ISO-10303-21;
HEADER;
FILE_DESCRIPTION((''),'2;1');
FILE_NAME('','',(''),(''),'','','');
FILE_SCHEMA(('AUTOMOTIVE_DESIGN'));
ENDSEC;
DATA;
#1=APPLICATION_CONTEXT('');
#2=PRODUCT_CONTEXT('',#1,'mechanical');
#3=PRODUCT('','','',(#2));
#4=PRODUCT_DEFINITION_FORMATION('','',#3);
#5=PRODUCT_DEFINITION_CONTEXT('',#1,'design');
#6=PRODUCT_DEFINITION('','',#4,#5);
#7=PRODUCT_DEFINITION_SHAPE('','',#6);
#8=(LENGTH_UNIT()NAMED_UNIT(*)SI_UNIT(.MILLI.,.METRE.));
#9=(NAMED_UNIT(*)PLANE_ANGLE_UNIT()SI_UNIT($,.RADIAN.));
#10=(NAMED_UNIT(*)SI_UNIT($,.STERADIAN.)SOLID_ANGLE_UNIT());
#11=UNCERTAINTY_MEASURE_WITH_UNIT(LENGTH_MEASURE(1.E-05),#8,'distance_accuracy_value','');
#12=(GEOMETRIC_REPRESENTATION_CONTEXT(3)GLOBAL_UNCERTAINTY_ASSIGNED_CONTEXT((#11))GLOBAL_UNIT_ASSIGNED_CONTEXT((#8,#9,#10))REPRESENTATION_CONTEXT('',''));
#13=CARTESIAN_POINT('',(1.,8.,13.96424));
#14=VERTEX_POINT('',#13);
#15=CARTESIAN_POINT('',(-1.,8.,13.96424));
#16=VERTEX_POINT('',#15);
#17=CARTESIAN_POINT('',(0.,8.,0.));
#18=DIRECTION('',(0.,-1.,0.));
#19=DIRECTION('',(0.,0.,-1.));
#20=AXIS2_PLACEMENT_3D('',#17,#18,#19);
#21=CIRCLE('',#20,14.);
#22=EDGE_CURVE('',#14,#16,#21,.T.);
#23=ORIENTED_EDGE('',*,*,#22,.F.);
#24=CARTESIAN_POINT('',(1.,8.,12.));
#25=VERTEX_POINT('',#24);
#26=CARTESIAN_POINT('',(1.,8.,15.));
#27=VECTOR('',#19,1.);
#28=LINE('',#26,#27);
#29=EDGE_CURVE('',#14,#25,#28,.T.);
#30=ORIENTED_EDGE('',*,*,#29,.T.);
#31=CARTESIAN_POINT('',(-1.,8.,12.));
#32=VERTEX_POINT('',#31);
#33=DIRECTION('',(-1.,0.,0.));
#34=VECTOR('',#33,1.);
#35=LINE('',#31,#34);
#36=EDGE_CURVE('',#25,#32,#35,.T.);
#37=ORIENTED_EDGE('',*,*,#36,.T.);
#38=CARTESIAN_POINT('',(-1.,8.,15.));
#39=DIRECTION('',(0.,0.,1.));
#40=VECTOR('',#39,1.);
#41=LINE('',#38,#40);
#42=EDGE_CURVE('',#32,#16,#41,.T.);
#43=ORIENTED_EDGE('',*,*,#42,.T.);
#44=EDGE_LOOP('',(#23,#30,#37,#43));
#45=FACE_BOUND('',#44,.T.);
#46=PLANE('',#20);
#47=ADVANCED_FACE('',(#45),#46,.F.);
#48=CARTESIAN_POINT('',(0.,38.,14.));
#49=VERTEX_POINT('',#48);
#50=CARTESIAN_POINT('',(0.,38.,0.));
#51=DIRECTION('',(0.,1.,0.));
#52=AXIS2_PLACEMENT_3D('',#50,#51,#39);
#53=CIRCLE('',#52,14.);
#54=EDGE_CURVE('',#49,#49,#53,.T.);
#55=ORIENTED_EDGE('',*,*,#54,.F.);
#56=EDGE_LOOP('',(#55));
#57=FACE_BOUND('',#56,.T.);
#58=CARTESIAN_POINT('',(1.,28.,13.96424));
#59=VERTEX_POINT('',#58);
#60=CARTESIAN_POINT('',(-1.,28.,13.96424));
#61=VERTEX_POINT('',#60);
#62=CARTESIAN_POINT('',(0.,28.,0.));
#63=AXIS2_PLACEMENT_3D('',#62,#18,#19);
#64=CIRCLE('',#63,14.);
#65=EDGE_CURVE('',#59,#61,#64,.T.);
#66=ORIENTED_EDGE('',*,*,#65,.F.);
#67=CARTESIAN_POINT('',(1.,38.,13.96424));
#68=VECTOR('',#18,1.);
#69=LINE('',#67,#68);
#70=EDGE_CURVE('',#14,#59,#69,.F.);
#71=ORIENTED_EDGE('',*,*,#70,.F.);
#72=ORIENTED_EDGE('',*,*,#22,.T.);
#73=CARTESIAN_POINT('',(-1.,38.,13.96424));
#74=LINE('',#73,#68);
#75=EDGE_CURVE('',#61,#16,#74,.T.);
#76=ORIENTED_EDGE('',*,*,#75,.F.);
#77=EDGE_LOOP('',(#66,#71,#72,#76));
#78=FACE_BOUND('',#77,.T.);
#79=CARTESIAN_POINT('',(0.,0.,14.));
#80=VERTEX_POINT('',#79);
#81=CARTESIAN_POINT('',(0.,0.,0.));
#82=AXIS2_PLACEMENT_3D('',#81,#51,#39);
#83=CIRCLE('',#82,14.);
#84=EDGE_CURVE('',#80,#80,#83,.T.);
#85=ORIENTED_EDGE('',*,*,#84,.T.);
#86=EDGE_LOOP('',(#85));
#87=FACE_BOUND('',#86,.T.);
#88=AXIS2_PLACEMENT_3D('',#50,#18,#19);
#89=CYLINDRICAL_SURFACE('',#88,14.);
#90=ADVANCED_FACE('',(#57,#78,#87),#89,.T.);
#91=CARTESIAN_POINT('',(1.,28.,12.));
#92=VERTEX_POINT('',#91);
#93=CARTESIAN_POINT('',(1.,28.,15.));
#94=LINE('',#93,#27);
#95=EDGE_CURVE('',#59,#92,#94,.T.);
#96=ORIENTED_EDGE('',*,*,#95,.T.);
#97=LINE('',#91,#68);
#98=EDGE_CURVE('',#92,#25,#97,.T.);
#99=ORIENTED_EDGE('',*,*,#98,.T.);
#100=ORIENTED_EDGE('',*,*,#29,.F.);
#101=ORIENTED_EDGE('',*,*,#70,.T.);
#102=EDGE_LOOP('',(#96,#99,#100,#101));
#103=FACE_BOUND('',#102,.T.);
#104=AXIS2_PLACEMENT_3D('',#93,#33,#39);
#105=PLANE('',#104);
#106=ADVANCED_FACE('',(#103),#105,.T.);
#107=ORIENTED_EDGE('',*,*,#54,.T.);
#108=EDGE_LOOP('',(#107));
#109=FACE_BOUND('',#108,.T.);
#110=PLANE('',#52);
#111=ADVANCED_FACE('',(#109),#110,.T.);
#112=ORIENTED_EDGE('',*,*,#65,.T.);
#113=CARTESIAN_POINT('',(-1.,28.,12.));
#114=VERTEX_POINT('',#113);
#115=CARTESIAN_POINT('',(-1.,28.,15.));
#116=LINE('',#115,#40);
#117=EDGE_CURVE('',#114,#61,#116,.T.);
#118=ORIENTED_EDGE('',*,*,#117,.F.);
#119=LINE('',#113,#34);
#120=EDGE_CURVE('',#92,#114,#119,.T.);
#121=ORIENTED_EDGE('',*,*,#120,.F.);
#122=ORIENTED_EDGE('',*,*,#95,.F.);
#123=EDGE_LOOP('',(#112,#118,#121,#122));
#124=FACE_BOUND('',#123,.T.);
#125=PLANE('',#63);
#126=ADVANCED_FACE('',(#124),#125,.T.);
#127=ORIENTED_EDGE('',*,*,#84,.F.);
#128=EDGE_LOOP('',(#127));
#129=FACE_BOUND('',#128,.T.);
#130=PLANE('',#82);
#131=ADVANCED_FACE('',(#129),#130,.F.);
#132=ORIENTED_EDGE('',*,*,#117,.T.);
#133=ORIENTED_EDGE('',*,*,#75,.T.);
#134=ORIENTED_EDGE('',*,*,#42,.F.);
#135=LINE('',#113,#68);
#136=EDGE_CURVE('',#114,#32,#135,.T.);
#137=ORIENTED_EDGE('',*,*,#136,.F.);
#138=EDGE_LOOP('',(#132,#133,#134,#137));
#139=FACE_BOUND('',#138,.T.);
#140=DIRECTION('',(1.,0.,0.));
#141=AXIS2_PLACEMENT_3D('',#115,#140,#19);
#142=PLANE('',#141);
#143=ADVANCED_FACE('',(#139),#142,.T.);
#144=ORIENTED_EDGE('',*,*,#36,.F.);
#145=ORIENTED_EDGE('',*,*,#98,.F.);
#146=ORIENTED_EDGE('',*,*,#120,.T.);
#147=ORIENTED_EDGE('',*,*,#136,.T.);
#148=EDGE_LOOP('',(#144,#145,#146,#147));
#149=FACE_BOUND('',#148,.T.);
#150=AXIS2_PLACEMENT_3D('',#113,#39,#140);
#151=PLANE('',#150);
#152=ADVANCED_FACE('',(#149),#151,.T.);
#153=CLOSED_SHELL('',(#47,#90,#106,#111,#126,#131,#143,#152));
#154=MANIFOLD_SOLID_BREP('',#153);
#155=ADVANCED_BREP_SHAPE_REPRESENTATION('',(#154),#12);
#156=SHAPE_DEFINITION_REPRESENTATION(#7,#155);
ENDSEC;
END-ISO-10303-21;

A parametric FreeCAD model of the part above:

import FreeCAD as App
import Part
import Sketcher

V = App.Vector


def add_polygon(sketch, points):
    """Adds a closed chain of lines whose ends are joined by coincident constraints."""
    first, n = sketch.GeometryCount, len(points)
    for a, b in zip(points, points[1:] + points[:1]):
        sketch.addGeometry(Part.LineSegment(App.Vector(*a, 0), App.Vector(*b, 0)), False)
    for i in range(n):
        sketch.addConstraint(Sketcher.Constraint("Coincident", first + i, 2, first + (i + 1) % n, 1))

doc = App.newDocument("Part")
body = doc.addObject("PartDesign::Body", "Body")

sketch1 = body.newObject("Sketcher::SketchObject", "Sketch")
sketch1.AttachmentSupport = (doc.getObject("XZ_Plane"), [""])
sketch1.MapMode = "FlatFace"
sketch1.addGeometry(Part.Circle(V(0, 0, 0), V(0, 0, 1), 14), False)
sketch1.addConstraint([
    Sketcher.Constraint("Coincident", 0, 3, -1, 1),
    Sketcher.Constraint("Diameter", 0, 28.0),
])
pad1 = body.newObject("PartDesign::Pad", "Pad")
pad1.Profile = sketch1
pad1.Length = 38
pad1.Reversed = True

sketch2 = body.newObject("Sketcher::SketchObject", "Sketch001")
sketch2.AttachmentSupport = (doc.getObject("XZ_Plane"), [""])
sketch2.MapMode = "FlatFace"
sketch2.AttachmentOffset = App.Placement(V(0, 0, -8), App.Rotation())
add_polygon(sketch2, [(-1, 12), (-1, 15), (1, 15), (1, 12)])
sketch2.addConstraint([
    Sketcher.Constraint("Vertical", 0),
    Sketcher.Constraint("Horizontal", 1),
    Sketcher.Constraint("Vertical", 2),
    Sketcher.Constraint("Horizontal", 3),
    Sketcher.Constraint("DistanceX", 1, 1, 1, 2, 2.0),
    Sketcher.Constraint("DistanceY", 0, 1, 0, 2, 3.0),
    Sketcher.Constraint("DistanceX", 0, 2, -1, 1, 1.0),
    Sketcher.Constraint("DistanceY", -1, 1, 0, 2, 15.0),
])
pocket1 = body.newObject("PartDesign::Pocket", "Pocket")
pocket1.Profile = sketch2
pocket1.Length = 20

doc.recompute()
